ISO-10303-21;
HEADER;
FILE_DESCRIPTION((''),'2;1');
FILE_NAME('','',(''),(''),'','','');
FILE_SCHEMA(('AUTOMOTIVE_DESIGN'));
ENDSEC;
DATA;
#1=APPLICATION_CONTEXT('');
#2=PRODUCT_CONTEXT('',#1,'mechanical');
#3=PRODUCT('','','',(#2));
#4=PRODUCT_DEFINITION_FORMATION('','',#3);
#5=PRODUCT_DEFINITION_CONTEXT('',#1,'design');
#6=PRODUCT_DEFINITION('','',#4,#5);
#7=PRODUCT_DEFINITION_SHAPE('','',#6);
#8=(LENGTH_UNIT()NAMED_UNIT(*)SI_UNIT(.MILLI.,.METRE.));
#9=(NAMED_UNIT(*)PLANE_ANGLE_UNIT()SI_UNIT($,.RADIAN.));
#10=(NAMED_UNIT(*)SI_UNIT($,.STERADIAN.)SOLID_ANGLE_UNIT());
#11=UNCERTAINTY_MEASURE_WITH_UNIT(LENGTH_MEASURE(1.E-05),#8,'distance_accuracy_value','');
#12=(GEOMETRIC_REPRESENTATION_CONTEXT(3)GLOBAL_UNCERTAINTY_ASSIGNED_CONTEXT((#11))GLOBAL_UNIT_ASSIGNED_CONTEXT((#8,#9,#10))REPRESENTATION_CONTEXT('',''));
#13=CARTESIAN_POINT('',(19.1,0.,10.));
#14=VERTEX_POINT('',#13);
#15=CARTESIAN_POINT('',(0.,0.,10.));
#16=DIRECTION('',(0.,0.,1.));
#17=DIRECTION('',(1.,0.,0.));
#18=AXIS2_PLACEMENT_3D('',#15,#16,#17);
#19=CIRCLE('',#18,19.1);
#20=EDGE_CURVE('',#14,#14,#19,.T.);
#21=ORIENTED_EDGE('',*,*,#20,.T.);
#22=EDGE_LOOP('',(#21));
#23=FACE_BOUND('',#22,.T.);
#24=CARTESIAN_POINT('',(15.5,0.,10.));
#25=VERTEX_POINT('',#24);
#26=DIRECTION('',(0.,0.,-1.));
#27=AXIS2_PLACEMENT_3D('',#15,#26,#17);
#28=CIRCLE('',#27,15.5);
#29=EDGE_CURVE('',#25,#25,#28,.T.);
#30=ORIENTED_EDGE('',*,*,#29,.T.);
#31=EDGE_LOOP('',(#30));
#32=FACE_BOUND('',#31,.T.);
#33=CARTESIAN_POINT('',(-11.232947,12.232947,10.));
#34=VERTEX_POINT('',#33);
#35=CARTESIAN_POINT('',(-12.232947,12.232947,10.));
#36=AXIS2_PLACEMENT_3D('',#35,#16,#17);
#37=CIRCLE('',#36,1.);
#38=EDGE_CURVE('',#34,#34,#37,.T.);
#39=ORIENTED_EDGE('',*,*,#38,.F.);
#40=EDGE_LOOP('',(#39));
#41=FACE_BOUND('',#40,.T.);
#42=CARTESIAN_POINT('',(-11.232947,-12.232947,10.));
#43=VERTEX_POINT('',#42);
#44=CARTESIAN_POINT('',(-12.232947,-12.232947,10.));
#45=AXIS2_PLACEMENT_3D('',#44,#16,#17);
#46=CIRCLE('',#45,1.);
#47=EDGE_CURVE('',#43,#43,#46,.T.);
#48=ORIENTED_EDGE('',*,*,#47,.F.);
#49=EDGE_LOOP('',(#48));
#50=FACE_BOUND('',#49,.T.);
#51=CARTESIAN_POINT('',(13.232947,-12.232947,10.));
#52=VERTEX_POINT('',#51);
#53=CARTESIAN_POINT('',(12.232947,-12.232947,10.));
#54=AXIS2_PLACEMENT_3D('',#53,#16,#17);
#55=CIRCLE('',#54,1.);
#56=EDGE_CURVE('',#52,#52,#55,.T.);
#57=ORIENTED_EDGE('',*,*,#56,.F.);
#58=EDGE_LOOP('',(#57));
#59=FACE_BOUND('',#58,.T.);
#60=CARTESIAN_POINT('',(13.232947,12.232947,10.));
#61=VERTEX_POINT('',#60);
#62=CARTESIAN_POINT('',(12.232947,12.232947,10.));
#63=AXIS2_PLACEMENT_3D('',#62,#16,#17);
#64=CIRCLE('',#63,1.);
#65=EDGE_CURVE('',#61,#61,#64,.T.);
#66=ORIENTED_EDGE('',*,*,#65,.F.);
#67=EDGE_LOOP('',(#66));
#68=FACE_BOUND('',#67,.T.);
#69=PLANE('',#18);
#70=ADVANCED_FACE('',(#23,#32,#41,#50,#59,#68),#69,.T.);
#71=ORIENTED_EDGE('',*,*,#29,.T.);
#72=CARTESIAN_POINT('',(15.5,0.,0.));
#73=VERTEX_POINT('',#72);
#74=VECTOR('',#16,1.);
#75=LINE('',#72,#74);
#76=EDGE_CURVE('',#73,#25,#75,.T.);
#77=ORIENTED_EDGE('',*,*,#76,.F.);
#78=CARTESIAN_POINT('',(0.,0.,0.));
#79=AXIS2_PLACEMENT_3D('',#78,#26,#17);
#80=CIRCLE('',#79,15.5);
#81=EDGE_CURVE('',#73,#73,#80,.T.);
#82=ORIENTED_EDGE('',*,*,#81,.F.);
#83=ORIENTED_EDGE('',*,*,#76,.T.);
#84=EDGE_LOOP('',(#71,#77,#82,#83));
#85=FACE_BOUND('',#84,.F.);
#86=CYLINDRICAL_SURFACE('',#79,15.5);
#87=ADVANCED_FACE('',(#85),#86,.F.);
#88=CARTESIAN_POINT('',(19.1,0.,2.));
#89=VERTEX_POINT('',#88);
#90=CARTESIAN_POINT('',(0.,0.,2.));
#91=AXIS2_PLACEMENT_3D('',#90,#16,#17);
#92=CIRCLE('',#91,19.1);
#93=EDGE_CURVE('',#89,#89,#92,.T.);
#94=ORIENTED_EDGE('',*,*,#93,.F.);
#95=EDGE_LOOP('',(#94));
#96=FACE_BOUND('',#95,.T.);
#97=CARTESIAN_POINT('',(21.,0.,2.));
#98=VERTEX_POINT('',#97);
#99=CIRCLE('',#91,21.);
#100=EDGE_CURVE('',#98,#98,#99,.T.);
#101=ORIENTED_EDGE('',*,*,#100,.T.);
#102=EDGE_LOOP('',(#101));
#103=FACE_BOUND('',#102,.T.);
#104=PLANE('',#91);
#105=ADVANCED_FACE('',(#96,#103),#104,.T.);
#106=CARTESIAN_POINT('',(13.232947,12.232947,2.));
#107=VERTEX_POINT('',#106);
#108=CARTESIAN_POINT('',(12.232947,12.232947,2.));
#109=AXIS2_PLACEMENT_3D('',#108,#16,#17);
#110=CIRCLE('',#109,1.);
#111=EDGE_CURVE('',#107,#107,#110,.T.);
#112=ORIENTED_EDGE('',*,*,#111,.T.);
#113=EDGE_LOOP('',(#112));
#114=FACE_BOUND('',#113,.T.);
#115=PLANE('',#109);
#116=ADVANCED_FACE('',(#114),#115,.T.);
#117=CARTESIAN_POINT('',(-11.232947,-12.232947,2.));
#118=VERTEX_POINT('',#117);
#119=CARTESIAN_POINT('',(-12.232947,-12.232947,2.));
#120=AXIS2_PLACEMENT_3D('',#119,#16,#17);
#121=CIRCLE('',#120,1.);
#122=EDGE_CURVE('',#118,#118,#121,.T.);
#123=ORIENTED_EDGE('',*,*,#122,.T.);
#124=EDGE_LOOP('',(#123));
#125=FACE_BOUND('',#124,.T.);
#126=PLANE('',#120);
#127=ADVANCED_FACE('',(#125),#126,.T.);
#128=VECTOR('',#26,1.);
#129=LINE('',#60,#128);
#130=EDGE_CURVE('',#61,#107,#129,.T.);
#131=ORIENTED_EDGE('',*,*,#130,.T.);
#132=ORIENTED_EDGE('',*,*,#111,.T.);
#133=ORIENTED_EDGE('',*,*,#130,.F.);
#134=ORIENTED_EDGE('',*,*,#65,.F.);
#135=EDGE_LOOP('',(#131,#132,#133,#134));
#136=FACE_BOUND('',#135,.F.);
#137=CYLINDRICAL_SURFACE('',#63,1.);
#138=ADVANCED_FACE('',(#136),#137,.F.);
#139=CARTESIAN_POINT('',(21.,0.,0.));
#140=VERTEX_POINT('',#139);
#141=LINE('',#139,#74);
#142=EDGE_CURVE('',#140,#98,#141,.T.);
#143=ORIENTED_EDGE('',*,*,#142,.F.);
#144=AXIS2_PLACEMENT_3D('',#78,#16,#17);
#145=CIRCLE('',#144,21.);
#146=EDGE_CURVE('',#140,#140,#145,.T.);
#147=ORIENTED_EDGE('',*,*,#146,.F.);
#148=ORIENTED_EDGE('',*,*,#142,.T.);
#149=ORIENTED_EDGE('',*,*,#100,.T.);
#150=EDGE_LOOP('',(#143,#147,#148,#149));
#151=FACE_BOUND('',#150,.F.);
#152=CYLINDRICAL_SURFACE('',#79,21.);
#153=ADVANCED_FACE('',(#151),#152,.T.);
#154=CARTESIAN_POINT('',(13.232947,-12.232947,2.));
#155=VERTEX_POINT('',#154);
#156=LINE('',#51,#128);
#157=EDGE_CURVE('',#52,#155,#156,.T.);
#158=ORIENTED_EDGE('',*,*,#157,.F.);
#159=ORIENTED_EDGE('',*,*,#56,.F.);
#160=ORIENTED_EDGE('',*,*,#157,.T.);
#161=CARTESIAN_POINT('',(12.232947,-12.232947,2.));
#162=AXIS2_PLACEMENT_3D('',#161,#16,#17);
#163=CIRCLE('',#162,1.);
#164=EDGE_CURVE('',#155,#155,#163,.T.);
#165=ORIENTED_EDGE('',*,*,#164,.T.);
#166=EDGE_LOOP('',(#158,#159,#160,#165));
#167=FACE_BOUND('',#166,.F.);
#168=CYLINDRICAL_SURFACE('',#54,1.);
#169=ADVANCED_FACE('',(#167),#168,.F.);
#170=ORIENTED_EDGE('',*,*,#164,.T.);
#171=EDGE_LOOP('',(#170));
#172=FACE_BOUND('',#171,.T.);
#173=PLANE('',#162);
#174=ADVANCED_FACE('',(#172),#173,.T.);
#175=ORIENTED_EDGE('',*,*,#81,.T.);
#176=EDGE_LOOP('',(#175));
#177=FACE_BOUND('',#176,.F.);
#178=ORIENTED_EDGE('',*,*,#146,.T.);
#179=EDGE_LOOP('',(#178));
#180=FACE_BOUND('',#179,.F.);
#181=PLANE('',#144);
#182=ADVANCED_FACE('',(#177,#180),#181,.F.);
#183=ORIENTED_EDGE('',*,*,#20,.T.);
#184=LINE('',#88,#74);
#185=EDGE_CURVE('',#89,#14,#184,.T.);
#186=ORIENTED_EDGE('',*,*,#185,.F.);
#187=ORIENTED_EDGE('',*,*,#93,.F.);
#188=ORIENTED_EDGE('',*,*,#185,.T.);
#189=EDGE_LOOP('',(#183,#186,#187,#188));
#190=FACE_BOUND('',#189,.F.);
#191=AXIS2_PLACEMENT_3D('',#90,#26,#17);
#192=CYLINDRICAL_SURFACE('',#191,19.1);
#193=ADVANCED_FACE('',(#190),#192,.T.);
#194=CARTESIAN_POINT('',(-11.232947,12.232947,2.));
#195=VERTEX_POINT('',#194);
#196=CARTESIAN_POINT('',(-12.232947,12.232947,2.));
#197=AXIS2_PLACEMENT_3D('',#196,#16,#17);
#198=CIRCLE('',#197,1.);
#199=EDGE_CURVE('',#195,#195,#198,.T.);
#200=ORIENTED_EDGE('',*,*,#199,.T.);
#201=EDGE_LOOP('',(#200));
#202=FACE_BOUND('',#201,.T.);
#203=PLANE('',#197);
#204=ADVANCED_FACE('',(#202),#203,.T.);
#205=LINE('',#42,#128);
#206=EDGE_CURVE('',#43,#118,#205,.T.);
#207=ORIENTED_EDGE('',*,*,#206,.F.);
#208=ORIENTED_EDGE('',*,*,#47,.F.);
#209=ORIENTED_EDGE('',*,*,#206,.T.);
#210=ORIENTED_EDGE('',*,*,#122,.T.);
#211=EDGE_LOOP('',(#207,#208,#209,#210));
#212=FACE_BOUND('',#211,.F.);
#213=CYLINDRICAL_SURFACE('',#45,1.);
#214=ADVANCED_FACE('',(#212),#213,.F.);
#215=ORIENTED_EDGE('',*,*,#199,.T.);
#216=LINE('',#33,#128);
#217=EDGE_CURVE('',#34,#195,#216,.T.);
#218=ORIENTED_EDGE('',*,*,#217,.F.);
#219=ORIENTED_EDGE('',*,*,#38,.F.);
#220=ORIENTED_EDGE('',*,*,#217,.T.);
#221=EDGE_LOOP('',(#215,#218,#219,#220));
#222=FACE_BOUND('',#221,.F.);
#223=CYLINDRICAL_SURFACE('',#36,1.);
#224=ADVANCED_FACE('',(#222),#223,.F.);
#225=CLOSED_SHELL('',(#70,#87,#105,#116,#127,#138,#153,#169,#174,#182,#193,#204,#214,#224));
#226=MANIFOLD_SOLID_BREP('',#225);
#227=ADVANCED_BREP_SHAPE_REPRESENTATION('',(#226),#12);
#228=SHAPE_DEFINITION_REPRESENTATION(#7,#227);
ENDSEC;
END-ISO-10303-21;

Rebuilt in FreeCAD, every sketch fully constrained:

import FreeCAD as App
import Part
import Sketcher
from FreeCAD import Vector

doc = App.newDocument("Part")
body = doc.addObject("PartDesign::Body", "Body")

# Sketch on XY plane
sketch1 = body.newObject("Sketcher::SketchObject", "Sketch")
sketch1.AttachmentSupport = (doc.getObject("XY_Plane"), [""])
sketch1.MapMode = "FlatFace"
sketch1.addGeometry(Part.Circle(Vector(0, 0, 0), Vector(0, 0, 1), 21), False)
sketch1.addConstraint([
    Sketcher.Constraint("Coincident", 0, 3, -1, 1),
    Sketcher.Constraint("Diameter", 0, 42.0),
])
pad1 = body.newObject("PartDesign::Pad", "Pad")
pad1.Profile = sketch1
pad1.Length = 2

# Sketch on XY plane
sketch2 = body.newObject("Sketcher::SketchObject", "Sketch001")
sketch2.AttachmentSupport = (doc.getObject("XY_Plane"), [""])
sketch2.MapMode = "FlatFace"
sketch2.AttachmentOffset = App.Placement(Vector(0, 0, 2), App.Rotation())
sketch2.addGeometry(Part.Circle(Vector(0, 0, 0), Vector(0, 0, 1), 19), False)
sketch2.addConstraint([
    Sketcher.Constraint("Coincident", 0, 3, -1, 1),
    Sketcher.Constraint("Diameter", 0, 38.2),
])
pad2 = body.newObject("PartDesign::Pad", "Pad001")
pad2.Profile = sketch2
pad2.Length = 8

# Sketch on XY plane
sketch3 = body.newObject("Sketcher::SketchObject", "Sketch002")
sketch3.AttachmentSupport = (doc.getObject("XY_Plane"), [""])
sketch3.MapMode = "FlatFace"
sketch3.addGeometry(Part.Circle(Vector(0, 0, 0), Vector(0, 0, 1), 16), False)
sketch3.addConstraint([
    Sketcher.Constraint("Coincident", 0, 3, -1, 1),
    Sketcher.Constraint("Diameter", 0, 31.0),
])
pocket1 = body.newObject("PartDesign::Pocket", "Pocket")
pocket1.Profile = sketch3
pocket1.Type = "ThroughAll"
pocket1.Reversed = True

# Sketch on XY plane
sketch4 = body.newObject("Sketcher::SketchObject", "Sketch003")
sketch4.AttachmentSupport = (doc.getObject("XY_Plane"), [""])
sketch4.MapMode = "FlatFace"
sketch4.AttachmentOffset = App.Placement(Vector(0, 0, 10), App.Rotation())
sketch4.addGeometry([
    Part.Circle(Vector(-12.2, 12.2, 0), Vector(0, 0, 1), 1),
    Part.Circle(Vector(12.2, 12.2, 0), Vector(0, 0, 1), 1),
    Part.Circle(Vector(-12.2, -12.2, 0), Vector(0, 0, 1), 1),
    Part.Circle(Vector(12.2, -12.2, 0), Vector(0, 0, 1), 1),
], False)
sketch4.addConstraint([
    Sketcher.Constraint("Equal", 0, 1),
    Sketcher.Constraint("Equal", 1, 2),
    Sketcher.Constraint("Equal", 2, 3),
    Sketcher.Constraint("Symmetric", 1, 3, 2, 3, -1, 1),
    Sketcher.Constraint("Symmetric", 0, 3, 3, 3, -1, 1),
    Sketcher.Constraint("Symmetric", 0, 3, 1, 3, -2),
    Sketcher.Constraint("Diameter", 0, 2.0),
    Sketcher.Constraint("DistanceX", 0, 3, -1, 1, 12.232947),
    Sketcher.Constraint("DistanceY", -1, 1, 0, 3, 12.232947),
])
pocket2 = body.newObject("PartDesign::Pocket", "Pocket001")
pocket2.Profile = sketch4
pocket2.Length = 8

doc.recompute()
